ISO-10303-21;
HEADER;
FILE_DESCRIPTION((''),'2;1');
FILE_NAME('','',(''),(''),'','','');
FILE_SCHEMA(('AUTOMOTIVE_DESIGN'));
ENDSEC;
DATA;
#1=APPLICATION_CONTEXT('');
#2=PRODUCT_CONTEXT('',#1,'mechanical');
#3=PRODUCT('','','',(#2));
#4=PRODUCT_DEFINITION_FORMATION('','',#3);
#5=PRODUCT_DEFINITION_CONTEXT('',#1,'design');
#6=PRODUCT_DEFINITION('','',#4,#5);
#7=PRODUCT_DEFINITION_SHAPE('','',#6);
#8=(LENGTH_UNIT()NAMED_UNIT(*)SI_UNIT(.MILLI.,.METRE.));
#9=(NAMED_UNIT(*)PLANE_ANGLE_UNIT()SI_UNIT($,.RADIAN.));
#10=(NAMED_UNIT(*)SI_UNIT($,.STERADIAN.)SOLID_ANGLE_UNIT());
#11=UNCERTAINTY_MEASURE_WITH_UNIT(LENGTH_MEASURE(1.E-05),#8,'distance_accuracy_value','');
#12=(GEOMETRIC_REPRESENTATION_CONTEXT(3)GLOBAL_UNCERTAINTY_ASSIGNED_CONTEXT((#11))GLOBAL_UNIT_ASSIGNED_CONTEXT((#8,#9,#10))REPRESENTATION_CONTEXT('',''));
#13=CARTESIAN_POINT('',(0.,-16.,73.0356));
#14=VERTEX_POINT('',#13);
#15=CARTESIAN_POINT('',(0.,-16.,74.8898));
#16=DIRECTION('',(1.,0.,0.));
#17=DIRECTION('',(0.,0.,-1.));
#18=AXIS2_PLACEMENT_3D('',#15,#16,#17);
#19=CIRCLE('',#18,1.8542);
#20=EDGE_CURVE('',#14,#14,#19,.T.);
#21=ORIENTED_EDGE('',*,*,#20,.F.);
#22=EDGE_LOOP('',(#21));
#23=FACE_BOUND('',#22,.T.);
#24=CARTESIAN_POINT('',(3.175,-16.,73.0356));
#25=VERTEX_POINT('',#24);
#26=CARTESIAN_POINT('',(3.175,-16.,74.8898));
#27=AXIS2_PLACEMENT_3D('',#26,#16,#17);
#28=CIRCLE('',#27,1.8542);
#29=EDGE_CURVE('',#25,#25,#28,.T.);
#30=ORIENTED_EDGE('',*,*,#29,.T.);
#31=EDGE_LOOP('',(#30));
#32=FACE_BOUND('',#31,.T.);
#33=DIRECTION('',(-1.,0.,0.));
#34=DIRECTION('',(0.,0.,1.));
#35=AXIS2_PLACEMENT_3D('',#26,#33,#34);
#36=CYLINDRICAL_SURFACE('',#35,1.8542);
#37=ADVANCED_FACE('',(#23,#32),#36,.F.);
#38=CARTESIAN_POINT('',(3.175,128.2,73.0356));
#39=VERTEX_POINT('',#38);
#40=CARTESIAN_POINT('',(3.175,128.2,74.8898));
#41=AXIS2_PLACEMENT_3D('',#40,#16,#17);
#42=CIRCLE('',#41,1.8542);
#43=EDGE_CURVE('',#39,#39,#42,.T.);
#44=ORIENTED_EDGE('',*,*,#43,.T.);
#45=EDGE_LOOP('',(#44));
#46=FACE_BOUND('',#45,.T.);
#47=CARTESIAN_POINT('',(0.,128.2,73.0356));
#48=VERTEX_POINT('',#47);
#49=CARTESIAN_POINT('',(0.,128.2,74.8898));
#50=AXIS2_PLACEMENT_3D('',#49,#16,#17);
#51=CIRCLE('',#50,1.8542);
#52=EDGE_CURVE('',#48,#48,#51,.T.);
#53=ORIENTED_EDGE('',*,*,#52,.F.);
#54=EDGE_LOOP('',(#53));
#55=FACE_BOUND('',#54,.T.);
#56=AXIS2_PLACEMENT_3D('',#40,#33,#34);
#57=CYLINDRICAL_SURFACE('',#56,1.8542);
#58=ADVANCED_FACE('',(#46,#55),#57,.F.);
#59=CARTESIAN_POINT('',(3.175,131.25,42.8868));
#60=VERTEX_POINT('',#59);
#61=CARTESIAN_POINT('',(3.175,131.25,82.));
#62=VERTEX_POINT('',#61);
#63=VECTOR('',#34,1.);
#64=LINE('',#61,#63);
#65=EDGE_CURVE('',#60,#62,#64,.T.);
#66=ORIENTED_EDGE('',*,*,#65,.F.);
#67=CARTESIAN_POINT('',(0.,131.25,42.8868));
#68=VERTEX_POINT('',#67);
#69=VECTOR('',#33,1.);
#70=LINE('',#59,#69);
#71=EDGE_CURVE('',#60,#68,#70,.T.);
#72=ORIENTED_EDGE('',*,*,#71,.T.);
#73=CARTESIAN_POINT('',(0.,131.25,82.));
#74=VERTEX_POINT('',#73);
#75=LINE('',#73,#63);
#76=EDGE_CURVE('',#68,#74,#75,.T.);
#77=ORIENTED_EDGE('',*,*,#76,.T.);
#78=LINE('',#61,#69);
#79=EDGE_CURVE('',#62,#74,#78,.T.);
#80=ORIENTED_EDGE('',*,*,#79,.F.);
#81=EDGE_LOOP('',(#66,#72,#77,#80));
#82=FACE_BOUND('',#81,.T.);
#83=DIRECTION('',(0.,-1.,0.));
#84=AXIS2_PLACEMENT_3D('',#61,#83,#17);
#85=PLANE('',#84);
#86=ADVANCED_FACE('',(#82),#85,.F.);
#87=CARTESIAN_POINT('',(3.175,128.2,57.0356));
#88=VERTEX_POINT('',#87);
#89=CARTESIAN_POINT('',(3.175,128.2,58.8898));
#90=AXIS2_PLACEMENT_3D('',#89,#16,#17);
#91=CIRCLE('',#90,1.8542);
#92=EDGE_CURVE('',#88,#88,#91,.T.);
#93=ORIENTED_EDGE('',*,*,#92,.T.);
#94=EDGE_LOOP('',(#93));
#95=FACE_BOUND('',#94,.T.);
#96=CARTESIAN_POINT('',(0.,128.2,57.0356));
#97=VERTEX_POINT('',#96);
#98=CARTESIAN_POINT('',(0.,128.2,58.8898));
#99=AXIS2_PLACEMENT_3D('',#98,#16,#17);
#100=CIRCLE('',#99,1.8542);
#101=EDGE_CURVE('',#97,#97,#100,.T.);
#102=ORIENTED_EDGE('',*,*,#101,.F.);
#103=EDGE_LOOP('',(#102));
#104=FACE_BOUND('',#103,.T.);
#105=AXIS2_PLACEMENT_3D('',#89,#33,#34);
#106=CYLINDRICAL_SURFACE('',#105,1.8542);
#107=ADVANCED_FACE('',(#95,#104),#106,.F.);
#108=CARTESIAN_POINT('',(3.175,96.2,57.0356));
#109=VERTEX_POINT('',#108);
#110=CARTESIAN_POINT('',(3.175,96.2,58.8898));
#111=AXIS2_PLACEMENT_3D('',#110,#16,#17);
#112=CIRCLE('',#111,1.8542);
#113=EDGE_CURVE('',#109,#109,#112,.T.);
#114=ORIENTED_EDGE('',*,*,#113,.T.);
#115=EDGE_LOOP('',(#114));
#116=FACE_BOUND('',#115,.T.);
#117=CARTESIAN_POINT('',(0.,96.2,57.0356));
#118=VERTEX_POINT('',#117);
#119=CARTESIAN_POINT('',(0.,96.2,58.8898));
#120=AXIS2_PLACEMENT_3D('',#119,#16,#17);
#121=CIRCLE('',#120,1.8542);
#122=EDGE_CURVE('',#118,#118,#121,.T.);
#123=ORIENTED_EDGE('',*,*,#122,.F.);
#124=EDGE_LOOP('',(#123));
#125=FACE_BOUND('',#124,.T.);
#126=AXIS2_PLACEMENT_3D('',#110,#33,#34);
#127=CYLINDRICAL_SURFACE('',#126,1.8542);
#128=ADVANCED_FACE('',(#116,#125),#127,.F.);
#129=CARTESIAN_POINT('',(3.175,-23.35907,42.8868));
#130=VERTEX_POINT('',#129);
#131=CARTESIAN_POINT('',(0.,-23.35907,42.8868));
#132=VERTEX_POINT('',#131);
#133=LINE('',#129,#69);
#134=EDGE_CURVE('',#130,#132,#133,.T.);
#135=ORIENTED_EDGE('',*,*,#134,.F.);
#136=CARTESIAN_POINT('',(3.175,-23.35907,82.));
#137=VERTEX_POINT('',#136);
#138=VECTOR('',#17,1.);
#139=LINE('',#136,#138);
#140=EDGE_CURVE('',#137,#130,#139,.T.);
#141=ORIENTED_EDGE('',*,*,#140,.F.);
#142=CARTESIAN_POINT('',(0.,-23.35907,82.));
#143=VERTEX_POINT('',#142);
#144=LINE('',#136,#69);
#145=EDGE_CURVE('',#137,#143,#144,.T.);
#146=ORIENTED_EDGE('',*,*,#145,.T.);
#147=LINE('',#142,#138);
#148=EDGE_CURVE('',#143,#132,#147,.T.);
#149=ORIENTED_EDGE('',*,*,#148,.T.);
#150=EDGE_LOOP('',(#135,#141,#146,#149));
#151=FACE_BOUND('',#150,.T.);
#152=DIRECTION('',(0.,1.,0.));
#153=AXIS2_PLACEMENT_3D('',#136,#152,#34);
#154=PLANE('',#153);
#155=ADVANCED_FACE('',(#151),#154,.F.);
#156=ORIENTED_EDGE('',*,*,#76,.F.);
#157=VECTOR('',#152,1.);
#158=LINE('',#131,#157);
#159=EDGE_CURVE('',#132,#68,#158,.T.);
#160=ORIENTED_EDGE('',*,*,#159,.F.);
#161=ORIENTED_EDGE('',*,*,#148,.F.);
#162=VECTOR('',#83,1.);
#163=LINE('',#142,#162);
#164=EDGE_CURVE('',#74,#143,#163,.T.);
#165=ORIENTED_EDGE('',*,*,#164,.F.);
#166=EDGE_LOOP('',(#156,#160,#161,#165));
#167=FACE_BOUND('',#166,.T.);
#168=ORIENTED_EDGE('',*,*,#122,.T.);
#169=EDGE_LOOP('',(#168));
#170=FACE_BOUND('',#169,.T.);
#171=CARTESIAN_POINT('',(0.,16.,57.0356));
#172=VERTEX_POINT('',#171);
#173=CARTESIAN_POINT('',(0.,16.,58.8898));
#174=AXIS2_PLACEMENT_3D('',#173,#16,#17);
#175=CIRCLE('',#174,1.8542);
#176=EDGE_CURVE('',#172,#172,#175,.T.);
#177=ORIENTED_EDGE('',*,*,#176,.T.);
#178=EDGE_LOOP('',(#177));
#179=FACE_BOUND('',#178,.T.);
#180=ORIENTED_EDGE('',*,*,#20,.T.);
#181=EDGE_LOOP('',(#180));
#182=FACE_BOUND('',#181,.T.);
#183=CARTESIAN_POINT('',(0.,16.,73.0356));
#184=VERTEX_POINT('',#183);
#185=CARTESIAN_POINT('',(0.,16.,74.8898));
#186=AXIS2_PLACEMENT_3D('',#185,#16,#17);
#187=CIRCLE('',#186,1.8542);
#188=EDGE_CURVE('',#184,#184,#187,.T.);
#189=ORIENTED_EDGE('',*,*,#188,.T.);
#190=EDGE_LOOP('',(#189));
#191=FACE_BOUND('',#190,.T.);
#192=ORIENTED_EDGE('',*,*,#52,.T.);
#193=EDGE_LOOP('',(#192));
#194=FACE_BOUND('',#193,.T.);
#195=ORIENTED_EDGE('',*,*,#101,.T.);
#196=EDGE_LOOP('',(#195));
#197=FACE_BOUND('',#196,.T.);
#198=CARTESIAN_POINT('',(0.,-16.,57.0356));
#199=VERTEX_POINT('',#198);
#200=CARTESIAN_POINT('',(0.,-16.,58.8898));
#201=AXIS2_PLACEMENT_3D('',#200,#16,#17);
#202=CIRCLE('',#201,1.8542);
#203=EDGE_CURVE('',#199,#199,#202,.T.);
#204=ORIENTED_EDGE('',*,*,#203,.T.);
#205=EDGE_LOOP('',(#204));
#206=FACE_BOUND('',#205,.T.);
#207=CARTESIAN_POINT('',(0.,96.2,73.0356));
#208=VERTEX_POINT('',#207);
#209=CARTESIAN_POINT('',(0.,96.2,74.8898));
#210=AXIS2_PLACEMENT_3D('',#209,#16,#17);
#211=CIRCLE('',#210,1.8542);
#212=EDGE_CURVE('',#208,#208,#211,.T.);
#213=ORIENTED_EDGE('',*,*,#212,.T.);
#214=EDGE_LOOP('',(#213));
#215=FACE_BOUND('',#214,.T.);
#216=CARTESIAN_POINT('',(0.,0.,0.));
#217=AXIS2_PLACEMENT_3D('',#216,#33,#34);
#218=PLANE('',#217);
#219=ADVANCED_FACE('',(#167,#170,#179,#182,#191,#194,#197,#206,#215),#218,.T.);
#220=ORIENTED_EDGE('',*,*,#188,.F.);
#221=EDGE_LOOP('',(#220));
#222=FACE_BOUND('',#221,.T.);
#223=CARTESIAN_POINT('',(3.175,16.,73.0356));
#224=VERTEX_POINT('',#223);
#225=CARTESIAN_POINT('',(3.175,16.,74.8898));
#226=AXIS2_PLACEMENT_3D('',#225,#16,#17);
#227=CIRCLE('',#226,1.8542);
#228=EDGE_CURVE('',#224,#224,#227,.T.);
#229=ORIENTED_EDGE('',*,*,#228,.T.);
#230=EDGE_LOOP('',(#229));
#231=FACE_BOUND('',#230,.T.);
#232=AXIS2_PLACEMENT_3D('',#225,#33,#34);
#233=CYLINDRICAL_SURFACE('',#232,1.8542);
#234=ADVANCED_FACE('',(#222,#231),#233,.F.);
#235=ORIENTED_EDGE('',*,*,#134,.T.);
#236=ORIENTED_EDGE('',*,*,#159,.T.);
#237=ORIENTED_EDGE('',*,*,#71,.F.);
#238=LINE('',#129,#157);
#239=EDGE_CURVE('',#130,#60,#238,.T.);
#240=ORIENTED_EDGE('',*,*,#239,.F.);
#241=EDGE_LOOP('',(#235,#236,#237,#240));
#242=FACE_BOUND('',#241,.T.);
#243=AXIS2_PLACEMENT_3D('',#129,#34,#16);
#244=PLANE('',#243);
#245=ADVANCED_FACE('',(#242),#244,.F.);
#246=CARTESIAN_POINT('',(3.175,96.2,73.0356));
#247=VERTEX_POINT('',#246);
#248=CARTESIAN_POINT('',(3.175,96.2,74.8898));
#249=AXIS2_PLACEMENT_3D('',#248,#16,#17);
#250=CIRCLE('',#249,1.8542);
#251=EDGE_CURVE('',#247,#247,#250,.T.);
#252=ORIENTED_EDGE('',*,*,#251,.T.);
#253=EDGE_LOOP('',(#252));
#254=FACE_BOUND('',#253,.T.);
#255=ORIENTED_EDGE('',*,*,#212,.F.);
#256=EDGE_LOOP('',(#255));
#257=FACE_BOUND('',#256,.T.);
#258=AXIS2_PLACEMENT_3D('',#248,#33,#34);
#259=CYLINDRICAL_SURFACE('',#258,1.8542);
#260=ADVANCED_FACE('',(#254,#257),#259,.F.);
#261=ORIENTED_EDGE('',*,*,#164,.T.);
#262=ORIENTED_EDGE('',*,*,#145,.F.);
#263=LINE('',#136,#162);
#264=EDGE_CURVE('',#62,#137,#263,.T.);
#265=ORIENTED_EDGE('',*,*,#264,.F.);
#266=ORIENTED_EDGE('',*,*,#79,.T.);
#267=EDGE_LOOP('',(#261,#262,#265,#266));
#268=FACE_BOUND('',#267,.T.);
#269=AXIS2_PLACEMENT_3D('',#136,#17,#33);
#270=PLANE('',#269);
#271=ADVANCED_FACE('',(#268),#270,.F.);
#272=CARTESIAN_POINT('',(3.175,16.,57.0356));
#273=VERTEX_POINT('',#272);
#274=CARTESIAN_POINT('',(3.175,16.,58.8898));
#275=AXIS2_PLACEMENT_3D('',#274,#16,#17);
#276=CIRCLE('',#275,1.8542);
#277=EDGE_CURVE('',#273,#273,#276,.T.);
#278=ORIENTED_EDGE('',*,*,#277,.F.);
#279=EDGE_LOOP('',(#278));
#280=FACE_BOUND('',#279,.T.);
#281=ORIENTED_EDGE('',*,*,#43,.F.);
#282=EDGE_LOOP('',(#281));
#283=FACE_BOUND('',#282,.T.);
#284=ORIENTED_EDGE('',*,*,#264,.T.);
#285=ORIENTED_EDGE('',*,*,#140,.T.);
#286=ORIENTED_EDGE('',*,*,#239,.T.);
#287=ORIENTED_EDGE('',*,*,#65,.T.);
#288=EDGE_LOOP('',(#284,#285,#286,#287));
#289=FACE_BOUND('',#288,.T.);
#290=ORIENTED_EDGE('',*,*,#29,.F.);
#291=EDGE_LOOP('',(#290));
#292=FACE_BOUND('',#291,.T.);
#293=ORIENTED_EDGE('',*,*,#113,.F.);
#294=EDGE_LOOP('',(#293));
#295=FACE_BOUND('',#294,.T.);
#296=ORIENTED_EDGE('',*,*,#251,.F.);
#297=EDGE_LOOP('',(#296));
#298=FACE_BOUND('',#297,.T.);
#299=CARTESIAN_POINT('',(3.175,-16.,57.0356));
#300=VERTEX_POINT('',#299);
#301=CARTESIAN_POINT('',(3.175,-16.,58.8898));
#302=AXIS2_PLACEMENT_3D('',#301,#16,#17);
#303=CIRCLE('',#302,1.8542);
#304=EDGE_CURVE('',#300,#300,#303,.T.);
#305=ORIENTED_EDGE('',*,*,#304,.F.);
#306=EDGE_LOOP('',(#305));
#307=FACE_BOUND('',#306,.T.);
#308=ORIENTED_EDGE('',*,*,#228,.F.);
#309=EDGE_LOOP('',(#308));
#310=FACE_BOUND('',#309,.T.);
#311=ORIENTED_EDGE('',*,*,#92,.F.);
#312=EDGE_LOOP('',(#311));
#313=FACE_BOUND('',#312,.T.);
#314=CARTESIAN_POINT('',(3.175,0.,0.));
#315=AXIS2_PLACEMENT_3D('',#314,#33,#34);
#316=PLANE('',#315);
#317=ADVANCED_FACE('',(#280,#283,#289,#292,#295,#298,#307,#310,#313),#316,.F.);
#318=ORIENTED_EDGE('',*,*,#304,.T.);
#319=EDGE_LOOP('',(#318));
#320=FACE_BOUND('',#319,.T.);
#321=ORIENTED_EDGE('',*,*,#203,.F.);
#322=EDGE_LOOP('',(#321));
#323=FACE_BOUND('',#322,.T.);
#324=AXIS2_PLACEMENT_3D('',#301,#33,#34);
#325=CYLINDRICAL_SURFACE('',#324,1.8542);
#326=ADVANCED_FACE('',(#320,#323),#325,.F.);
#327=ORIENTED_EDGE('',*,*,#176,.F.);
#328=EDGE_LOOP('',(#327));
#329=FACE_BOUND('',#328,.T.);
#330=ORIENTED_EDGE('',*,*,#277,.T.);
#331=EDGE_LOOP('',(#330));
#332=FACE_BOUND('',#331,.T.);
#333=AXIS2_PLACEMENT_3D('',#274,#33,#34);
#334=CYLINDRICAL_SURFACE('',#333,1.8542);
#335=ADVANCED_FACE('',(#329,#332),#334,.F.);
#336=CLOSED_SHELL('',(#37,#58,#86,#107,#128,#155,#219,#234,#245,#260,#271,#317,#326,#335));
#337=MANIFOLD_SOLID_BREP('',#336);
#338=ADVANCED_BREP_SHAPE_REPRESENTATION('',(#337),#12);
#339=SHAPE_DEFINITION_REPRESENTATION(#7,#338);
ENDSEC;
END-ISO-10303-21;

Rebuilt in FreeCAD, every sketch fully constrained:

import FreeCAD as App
import Part
import Sketcher
Q = App.Units.Quantity

doc = App.newDocument("Part")
body = doc.addObject("PartDesign::Body", "Body")

sketch1 = body.newObject("Sketcher::SketchObject", "Sketch")
sketch1.AttachmentSupport = (doc.getObject("YZ_Plane"), [""])
sketch1.MapMode = "FlatFace"
sketch1.addGeometry([
    Part.LineSegment(App.Vector(131.2, 82, 0), App.Vector(-23.4, 82, 0)),
    Part.LineSegment(App.Vector(-23.4, 82, 0), App.Vector(-23.4, 42.9, 0)),
    Part.LineSegment(App.Vector(-23.4, 42.9, 0), App.Vector(131.2, 42.9, 0)),
    Part.LineSegment(App.Vector(131.2, 42.9, 0), App.Vector(131.2, 82, 0)),
    Part.Circle(App.Vector(-16, 74.9, 0), App.Vector(0, 0, 1), 1.9),
    Part.Circle(App.Vector(16, 74.9, 0), App.Vector(0, 0, 1), 1.9),
    Part.Circle(App.Vector(-16, 58.9, 0), App.Vector(0, 0, 1), 1.9),
    Part.Circle(App.Vector(16, 58.9, 0), App.Vector(0, 0, 1), 1.9),
    Part.Circle(App.Vector(96.2, 74.9, 0), App.Vector(0, 0, 1), 1.9),
    Part.Circle(App.Vector(128.2, 74.9, 0), App.Vector(0, 0, 1), 1.9),
    Part.Circle(App.Vector(96.2, 58.9, 0), App.Vector(0, 0, 1), 1.9),
    Part.Circle(App.Vector(128.2, 58.9, 0), App.Vector(0, 0, 1), 1.9),
], False)
sketch1.addConstraint([
    Sketcher.Constraint("Coincident", 0, 2, 1, 1),
    Sketcher.Constraint("Coincident", 1, 2, 2, 1),
    Sketcher.Constraint("Coincident", 2, 2, 3, 1),
    Sketcher.Constraint("Coincident", 3, 2, 0, 1),
    Sketcher.Constraint("Horizontal", 0),
    Sketcher.Constraint("Vertical", 1),
    Sketcher.Constraint("Horizontal", 2),
    Sketcher.Constraint("Vertical", 3),
    Sketcher.Constraint("Equal", 4, 5),
    Sketcher.Constraint("Equal", 5, 6),
    Sketcher.Constraint("Equal", 6, 7),
    Sketcher.Constraint("Equal", 7, 8),
    Sketcher.Constraint("Equal", 8, 9),
    Sketcher.Constraint("Equal", 9, 10),
    Sketcher.Constraint("Equal", 10, 11),
    Sketcher.Constraint("Symmetric", 4, 3, 5, 3, -2),
    Sketcher.Constraint("Symmetric", 6, 3, 7, 3, -2),
    Sketcher.Constraint("Horizontal", 5, 3, 8, 3),
    Sketcher.Constraint("Horizontal", 8, 3, 9, 3),
    Sketcher.Constraint("Horizontal", 7, 3, 10, 3),
    Sketcher.Constraint("Horizontal", 10, 3, 11, 3),
    Sketcher.Constraint("Vertical", 4, 3, 6, 3),
    Sketcher.Constraint("Vertical", 8, 3, 10, 3),
    Sketcher.Constraint("Vertical", 9, 3, 11, 3),
    Sketcher.Constraint("Diameter", 4, Q("0.146 in")),
    Sketcher.Constraint("DistanceY", 1, 2, 1, 1, 39.1132),
    Sketcher.Constraint("DistanceX", 0, 2, 0, 1, 154.60907),
    Sketcher.Constraint("DistanceX", 4, 3, -1, 1, 16.0),
    Sketcher.Constraint("DistanceY", -1, 1, 4, 3, 74.8898),
    Sketcher.Constraint("DistanceY", -1, 1, 6, 3, 58.8898),
    Sketcher.Constraint("DistanceX", -1, 1, 8, 3, 96.2),
    Sketcher.Constraint("DistanceX", -1, 1, 9, 3, 128.2),
    Sketcher.Constraint("DistanceY", -1, 1, 0, 2, 82.0),
    Sketcher.Constraint("DistanceX", -1, 1, 2, 2, 131.25),
])
pad1 = body.newObject("PartDesign::Pad", "Pad")
pad1.Profile = sketch1
pad1.Length = Q("0.125 in")

doc.recompute()
